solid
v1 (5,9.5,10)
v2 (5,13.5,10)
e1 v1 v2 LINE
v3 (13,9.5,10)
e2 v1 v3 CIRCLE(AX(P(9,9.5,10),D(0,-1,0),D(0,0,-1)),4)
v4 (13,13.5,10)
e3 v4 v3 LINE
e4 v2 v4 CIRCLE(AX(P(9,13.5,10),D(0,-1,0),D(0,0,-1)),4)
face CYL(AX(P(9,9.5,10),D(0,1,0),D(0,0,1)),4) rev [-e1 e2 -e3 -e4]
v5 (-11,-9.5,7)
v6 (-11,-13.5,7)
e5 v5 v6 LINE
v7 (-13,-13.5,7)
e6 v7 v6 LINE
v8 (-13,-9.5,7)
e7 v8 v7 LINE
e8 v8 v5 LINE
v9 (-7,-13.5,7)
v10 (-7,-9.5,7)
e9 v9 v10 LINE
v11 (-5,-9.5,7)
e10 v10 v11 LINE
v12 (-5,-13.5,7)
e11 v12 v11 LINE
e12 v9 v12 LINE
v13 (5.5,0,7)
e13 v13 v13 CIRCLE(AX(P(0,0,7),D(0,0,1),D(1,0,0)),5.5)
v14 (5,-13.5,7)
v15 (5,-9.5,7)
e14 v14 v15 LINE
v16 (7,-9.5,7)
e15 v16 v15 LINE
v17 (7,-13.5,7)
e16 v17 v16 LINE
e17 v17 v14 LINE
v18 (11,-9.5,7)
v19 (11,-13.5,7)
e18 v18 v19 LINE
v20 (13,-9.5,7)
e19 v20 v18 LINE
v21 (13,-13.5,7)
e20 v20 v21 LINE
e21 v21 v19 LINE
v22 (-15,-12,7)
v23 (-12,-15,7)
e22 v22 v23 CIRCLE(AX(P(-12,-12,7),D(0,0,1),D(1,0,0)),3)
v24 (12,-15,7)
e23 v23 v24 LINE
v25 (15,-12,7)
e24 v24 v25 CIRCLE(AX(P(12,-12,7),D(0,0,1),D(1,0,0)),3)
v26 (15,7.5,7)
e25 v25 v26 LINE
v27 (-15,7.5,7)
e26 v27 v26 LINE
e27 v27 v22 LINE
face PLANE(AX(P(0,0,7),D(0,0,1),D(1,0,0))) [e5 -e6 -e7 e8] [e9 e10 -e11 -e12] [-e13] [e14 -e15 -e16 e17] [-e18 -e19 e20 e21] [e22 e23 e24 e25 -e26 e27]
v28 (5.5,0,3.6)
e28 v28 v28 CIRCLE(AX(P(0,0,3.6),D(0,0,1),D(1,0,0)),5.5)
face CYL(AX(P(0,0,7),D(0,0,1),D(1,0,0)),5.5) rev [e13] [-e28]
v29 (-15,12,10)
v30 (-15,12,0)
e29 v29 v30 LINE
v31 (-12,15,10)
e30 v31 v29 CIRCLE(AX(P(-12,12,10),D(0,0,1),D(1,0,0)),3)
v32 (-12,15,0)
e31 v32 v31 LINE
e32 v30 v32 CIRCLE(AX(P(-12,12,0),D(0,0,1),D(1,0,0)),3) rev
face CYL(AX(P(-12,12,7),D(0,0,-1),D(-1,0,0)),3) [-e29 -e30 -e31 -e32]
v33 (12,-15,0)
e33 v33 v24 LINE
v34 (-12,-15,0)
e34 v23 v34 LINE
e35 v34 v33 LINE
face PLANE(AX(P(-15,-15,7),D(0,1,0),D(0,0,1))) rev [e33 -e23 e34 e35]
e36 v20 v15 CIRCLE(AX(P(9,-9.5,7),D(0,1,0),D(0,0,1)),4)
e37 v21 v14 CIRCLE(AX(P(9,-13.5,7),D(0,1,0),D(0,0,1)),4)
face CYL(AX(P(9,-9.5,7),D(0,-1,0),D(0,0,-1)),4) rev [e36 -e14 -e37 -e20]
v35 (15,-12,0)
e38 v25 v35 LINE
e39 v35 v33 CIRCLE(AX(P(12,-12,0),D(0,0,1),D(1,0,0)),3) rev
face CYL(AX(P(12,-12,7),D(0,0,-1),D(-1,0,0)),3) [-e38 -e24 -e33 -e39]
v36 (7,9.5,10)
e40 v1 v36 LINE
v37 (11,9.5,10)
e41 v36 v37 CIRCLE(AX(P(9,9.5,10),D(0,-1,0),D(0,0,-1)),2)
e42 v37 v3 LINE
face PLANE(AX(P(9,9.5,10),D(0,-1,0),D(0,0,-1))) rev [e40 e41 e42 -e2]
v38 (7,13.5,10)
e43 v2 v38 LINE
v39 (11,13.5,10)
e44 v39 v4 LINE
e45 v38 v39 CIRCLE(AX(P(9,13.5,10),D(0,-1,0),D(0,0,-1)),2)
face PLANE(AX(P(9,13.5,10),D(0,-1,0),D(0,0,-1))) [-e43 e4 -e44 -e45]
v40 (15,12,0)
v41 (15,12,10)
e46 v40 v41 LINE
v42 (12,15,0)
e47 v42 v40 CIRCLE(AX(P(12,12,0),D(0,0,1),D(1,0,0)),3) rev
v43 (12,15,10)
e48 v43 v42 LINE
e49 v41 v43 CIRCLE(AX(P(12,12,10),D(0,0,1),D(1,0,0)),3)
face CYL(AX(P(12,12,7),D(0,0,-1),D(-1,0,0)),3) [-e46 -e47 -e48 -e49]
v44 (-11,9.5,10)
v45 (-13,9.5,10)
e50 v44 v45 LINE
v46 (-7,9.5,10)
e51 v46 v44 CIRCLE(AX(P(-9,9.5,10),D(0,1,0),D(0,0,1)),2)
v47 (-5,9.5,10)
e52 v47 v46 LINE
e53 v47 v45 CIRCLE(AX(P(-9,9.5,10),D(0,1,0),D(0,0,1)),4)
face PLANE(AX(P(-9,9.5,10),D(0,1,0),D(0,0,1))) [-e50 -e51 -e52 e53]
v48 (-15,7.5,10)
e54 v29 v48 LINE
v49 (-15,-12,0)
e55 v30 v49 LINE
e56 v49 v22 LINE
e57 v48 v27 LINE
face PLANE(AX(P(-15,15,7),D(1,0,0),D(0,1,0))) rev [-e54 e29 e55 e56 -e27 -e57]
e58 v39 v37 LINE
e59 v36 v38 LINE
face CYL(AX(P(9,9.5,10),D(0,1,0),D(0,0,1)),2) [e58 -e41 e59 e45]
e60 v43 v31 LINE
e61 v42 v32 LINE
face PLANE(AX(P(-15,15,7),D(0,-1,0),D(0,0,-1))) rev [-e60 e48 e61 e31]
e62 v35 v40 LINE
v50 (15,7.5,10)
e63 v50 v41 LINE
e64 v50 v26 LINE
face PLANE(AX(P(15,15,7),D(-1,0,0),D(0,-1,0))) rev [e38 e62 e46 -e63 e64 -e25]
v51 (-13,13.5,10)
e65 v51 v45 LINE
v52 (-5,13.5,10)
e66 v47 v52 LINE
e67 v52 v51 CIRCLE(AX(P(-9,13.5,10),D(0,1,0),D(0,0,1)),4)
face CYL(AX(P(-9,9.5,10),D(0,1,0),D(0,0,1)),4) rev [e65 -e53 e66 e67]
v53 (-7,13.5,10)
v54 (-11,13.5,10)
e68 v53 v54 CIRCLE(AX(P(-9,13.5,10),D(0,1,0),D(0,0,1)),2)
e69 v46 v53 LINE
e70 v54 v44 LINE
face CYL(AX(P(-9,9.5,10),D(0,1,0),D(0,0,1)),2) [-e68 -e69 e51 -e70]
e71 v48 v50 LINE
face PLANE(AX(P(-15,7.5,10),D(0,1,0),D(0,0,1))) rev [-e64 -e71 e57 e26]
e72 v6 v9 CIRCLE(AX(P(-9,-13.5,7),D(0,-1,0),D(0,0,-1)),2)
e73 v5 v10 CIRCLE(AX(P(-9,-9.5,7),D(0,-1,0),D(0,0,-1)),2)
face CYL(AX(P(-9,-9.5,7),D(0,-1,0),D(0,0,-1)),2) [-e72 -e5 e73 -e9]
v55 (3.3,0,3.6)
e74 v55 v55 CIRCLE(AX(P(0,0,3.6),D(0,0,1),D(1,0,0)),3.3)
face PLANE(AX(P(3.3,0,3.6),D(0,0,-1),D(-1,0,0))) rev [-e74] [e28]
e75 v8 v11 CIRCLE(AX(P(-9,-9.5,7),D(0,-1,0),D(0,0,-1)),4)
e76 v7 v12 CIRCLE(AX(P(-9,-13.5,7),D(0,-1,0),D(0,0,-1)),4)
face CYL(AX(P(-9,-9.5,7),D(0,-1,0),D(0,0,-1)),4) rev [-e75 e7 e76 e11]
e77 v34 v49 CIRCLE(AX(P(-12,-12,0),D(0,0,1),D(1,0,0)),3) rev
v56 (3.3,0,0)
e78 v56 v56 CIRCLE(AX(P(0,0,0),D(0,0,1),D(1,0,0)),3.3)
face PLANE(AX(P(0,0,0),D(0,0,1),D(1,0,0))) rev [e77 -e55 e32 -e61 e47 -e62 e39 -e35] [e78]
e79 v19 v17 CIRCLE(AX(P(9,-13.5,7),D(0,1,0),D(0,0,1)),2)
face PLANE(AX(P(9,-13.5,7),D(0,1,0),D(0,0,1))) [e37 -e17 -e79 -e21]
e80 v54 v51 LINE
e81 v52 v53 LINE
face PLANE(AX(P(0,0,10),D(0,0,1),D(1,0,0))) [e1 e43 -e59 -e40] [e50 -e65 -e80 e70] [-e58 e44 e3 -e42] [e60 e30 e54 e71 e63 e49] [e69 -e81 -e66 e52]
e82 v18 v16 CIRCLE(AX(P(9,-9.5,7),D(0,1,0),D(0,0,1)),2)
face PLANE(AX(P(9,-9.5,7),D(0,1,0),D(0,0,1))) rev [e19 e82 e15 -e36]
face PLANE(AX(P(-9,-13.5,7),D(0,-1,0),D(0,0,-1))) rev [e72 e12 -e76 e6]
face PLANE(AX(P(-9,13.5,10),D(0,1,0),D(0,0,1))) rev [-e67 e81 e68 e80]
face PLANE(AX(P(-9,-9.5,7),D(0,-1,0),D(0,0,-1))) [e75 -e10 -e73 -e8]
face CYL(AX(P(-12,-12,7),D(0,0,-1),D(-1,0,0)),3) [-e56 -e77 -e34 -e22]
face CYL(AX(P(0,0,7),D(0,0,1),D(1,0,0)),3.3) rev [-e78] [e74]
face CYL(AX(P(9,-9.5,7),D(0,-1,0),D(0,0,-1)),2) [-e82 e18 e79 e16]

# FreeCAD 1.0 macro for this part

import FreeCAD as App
import Part
import Sketcher
from FreeCAD import Vector


def edges_at(feature, points):
    """Names of the edges that pass closest to the given points."""
    edges = feature.Shape.Edges
    near = lambda p: min(range(len(edges)), key=lambda i: edges[i].distToShape(Part.Vertex(*p))[0])
    return sorted({f"Edge{near(p) + 1}" for p in points})

doc = App.newDocument("Part")
params = doc.addObject("Spreadsheet::Sheet", "Params")
for row, (alias, value) in enumerate([
    ("sketch1_width", "30 mm"),
    ("pad1_length", "7 mm"),
    ("sketch2_width", "30 mm"),
    ("sketch2_height", "7.5 mm"),
    ("pad2_length", "3 mm"),
    ("sketch3_diameter", "6.6 mm"),
    ("hole_diameter", "6.6 mm"),
    ("hole_cbore_diameter", "11 mm"),
    ("hole_cbore_depth", "3.4 mm"),
    ("sketch4_diameter", "8 mm"),
    ("sketch4_diameter2", "4 mm"),
    ("pocket1_length", "4 mm"),
    ("sketch5_diameter", "8 mm"),
    ("sketch5_diameter2", "4 mm"),
    ("pocket2_length", "4 mm"),
    ("fillet_radius", "3 mm"),
], start=1):
    params.set(f"A{row}", alias)
    params.set(f"B{row}", "=" + value)
    params.setAlias(f"B{row}", alias)

body = doc.addObject("PartDesign::Body", "Body")

# Sketch on XY plane
sketch1 = body.newObject("Sketcher::SketchObject", "Sketch")
sketch1.AttachmentSupport = (doc.getObject("XY_Plane"), [""])
sketch1.MapMode = "FlatFace"
sketch1.addGeometry(Part.LineSegment(Vector(-15, 15, 0), Vector(-15, -15, 0)), False)
sketch1.addGeometry(Part.LineSegment(Vector(-15, -15, 0), Vector(15, -15, 0)), False)
sketch1.addGeometry(Part.LineSegment(Vector(15, -15, 0), Vector(15, 15, 0)), False)
sketch1.addGeometry(Part.LineSegment(Vector(15, 15, 0), Vector(-15, 15, 0)), False)
sketch1.addConstraint(Sketcher.Constraint("Coincident", 0, 2, 1, 1))
sketch1.addConstraint(Sketcher.Constraint("Coincident", 1, 2, 2, 1))
sketch1.addConstraint(Sketcher.Constraint("Coincident", 2, 2, 3, 1))
sketch1.addConstraint(Sketcher.Constraint("Coincident", 3, 2, 0, 1))
sketch1.addConstraint(Sketcher.Constraint("Vertical", 0))
sketch1.addConstraint(Sketcher.Constraint("Horizontal", 1))
sketch1.addConstraint(Sketcher.Constraint("Vertical", 2))
sketch1.addConstraint(Sketcher.Constraint("Horizontal", 3))
sketch1.addConstraint(Sketcher.Constraint("Symmetric", 0, 2, 2, 2, -1, 1))
sketch1.addConstraint(Sketcher.Constraint("Equal", 3, 0))
sketch1.addConstraint(Sketcher.Constraint("DistanceX", 1, 1, 1, 2, 30.0))
sketch1.setExpression("Constraints[10]", "Params.sketch1_width")
pad1 = body.newObject("PartDesign::Pad", "Pad")
pad1.Profile = sketch1
pad1.setExpression("Length", "Params.pad1_length")

# Sketch on XY plane
sketch2 = body.newObject("Sketcher::SketchObject", "Sketch001")
sketch2.AttachmentSupport = (doc.getObject("XY_Plane"), [""])
sketch2.MapMode = "FlatFace"
sketch2.AttachmentOffset = App.Placement(Vector(0, 0, 7), App.Rotation())
sketch2.addGeometry(Part.LineSegment(Vector(-15, 15, 0), Vector(-15, 8, 0)), False)
sketch2.addGeometry(Part.LineSegment(Vector(-15, 8, 0), Vector(15, 8, 0)), False)
sketch2.addGeometry(Part.LineSegment(Vector(15, 8, 0), Vector(15, 15, 0)), False)
sketch2.addGeometry(Part.LineSegment(Vector(15, 15, 0), Vector(-15, 15, 0)), False)
sketch2.addConstraint(Sketcher.Constraint("Coincident", 0, 2, 1, 1))
sketch2.addConstraint(Sketcher.Constraint("Coincident", 1, 2, 2, 1))
sketch2.addConstraint(Sketcher.Constraint("Coincident", 2, 2, 3, 1))
sketch2.addConstraint(Sketcher.Constraint("Coincident", 3, 2, 0, 1))
sketch2.addConstraint(Sketcher.Constraint("Vertical", 0))
sketch2.addConstraint(Sketcher.Constraint("Horizontal", 1))
sketch2.addConstraint(Sketcher.Constraint("Vertical", 2))
sketch2.addConstraint(Sketcher.Constraint("Horizontal", 3))
sketch2.addConstraint(Sketcher.Constraint("DistanceX", 1, 1, 1, 2, 30.0))
sketch2.addConstraint(Sketcher.Constraint("DistanceY", 0, 2, 0, 1, 7.5))
sketch2.addConstraint(Sketcher.Constraint("DistanceX", 0, 2, -1, 1, 15.0))
sketch2.addConstraint(Sketcher.Constraint("DistanceY", -1, 1, 2, 2, 15.0))
sketch2.setExpression("Constraints[8]", "Params.sketch2_width")
sketch2.setExpression("Constraints[9]", "Params.sketch2_height")
pad2 = body.newObject("PartDesign::Pad", "Pad001")
pad2.Profile = sketch2
pad2.setExpression("Length", "Params.pad2_length")

# Sketch on XY plane
sketch3 = body.newObject("Sketcher::SketchObject", "Sketch002")
sketch3.AttachmentSupport = (doc.getObject("XY_Plane"), [""])
sketch3.MapMode = "FlatFace"
sketch3.AttachmentOffset = App.Placement(Vector(0, 0, 7), App.Rotation())
sketch3.addGeometry(Part.Circle(Vector(0, 0, 0), Vector(0, 0, 1), 3.3), False)
sketch3.addConstraint(Sketcher.Constraint("Coincident", 0, 3, -1, 1))
sketch3.addConstraint(Sketcher.Constraint("Diameter", 0, 6.6))
sketch3.setExpression("Constraints[1]", "Params.sketch3_diameter")
doc.recompute()
hole = body.newObject("PartDesign::Hole", "Hole")
hole.Profile = sketch3
hole.ThreadType = "None"
hole.setExpression("Diameter", "Params.hole_diameter")
hole.DepthType = "ThroughAll"
hole.HoleCutType = "Counterbore"
hole.setExpression("HoleCutDiameter", "Params.hole_cbore_diameter")
hole.setExpression("HoleCutDepth", "Params.hole_cbore_depth")

# Sketch on XZ plane
sketch4 = body.newObject("Sketcher::SketchObject", "Sketch003")
sketch4.AttachmentSupport = (doc.getObject("XZ_Plane"), [""])
sketch4.MapMode = "FlatFace"
sketch4.AttachmentOffset = App.Placement(Vector(0, 0, 13.5), App.Rotation())
sketch4.addGeometry(Part.Circle(Vector(-9, 7, 0), Vector(0, 0, 1), 4), False)
sketch4.addGeometry(Part.Circle(Vector(-9, 7, 0), Vector(0, 0, 1), 2), False)
sketch4.addGeometry(Part.Circle(Vector(9, 7, 0), Vector(0, 0, 1), 4), False)
sketch4.addGeometry(Part.Circle(Vector(9, 7, 0), Vector(0, 0, 1), 2), False)
sketch4.addConstraint(Sketcher.Constraint("Coincident", 1, 3, 0, 3))
sketch4.addConstraint(Sketcher.Constraint("Coincident", 3, 3, 2, 3))
sketch4.addConstraint(Sketcher.Constraint("Equal", 0, 2))
sketch4.addConstraint(Sketcher.Constraint("Equal", 1, 3))
sketch4.addConstraint(Sketcher.Constraint("Symmetric", 0, 3, 2, 3, -2))
sketch4.addConstraint(Sketcher.Constraint("Diameter", 0, 8.0))
sketch4.addConstraint(Sketcher.Constraint("Diameter", 1, 4.0))
sketch4.addConstraint(Sketcher.Constraint("DistanceX", 0, 3, -1, 1, 9.0))
sketch4.addConstraint(Sketcher.Constraint("DistanceY", -1, 1, 0, 3, 7.0))
sketch4.setExpression("Constraints[5]", "Params.sketch4_diameter")
sketch4.setExpression("Constraints[6]", "Params.sketch4_diameter2")
pocket1 = body.newObject("PartDesign::Pocket", "Pocket")
pocket1.Profile = sketch4
pocket1.setExpression("Length", "Params.pocket1_length")

# Sketch on XZ plane
sketch5 = body.newObject("Sketcher::SketchObject", "Sketch004")
sketch5.AttachmentSupport = (doc.getObject("XZ_Plane"), [""])
sketch5.MapMode = "FlatFace"
sketch5.AttachmentOffset = App.Placement(Vector(0, 0, -13.5), App.Rotation())
sketch5.addGeometry(Part.Circle(Vector(-9, 10, 0), Vector(0, 0, 1), 4), False)
sketch5.addGeometry(Part.Circle(Vector(-9, 10, 0), Vector(0, 0, 1), 2), False)
sketch5.addGeometry(Part.Circle(Vector(9, 10, 0), Vector(0, 0, 1), 4), False)
sketch5.addGeometry(Part.Circle(Vector(9, 10, 0), Vector(0, 0, 1), 2), False)
sketch5.addConstraint(Sketcher.Constraint("Coincident", 1, 3, 0, 3))
sketch5.addConstraint(Sketcher.Constraint("Coincident", 3, 3, 2, 3))
sketch5.addConstraint(Sketcher.Constraint("Equal", 0, 2))
sketch5.addConstraint(Sketcher.Constraint("Equal", 1, 3))
sketch5.addConstraint(Sketcher.Constraint("Symmetric", 0, 3, 2, 3, -2))
sketch5.addConstraint(Sketcher.Constraint("Diameter", 0, 8.0))
sketch5.addConstraint(Sketcher.Constraint("Diameter", 1, 4.0))
sketch5.addConstraint(Sketcher.Constraint("DistanceX", 0, 3, -1, 1, 9.0))
sketch5.addConstraint(Sketcher.Constraint("DistanceY", -1, 1, 0, 3, 10.0))
sketch5.setExpression("Constraints[5]", "Params.sketch5_diameter")
sketch5.setExpression("Constraints[6]", "Params.sketch5_diameter2")
pocket2 = body.newObject("PartDesign::Pocket", "Pocket001")
pocket2.Profile = sketch5
pocket2.setExpression("Length", "Params.pocket2_length")
pocket2.Reversed = True
doc.recompute()

fillet = body.newObject("PartDesign::Fillet", "Fillet")
fillet.Base = (pocket2, edges_at(pocket2, [
    (15, -15, 3.5),
    (-15, -15, 3.5),
    (-15, 15, 5),
    (15, 15, 5),
]))
fillet.setExpression("Radius", "Params.fillet_radius")

doc.recompute()
